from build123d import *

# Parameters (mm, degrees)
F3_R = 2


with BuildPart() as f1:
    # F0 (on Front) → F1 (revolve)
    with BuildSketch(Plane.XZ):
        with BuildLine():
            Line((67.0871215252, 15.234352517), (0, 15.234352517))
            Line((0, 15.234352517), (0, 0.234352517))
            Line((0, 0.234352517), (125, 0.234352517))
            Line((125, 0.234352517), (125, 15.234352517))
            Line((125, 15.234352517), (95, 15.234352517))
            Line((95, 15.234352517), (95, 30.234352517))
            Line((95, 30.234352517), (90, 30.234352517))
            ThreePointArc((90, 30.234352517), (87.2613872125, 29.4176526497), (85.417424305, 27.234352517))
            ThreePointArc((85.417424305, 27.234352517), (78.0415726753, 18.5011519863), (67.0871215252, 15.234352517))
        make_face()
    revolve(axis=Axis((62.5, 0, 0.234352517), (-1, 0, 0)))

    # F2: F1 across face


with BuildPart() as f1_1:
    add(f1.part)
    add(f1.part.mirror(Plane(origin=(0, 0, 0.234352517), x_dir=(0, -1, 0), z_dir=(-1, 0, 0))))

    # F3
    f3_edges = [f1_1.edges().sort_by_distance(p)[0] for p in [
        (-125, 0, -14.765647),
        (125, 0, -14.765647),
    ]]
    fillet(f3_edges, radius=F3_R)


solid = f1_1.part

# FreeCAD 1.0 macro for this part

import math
import FreeCAD as App
import Part
import Sketcher

V = App.Vector
Q = App.Units.Quantity


def edges_at(feature, points):
    """Names of the edges that pass closest to the given points."""
    edges = feature.Shape.Edges
    near = lambda p: min(range(len(edges)), key=lambda i: edges[i].distToShape(Part.Vertex(*p))[0])
    return sorted({f"Edge{near(p) + 1}" for p in points})

doc = App.newDocument("Part")
body = doc.addObject("PartDesign::Body", "Body")

# Sketch on XZ plane
sketch1 = body.newObject("Sketcher::SketchObject", "Sketch")
sketch1.AttachmentSupport = (doc.getObject("XZ_Plane"), [""])
sketch1.MapMode = "FlatFace"
sketch1.addGeometry([
    Part.LineSegment(V(67.087122, 15.234353, 0), V(0, 15.234353, 0)),  # 0
    Part.LineSegment(V(0, 15.234353, 0), V(0, 0.234353, 0)),  # 1
    Part.LineSegment(V(0, 0.234353, 0), V(125, 0.234353, 0)),  # 2
    Part.LineSegment(V(125, 0.234353, 0), V(125, 15.234353, 0)),  # 3
    Part.LineSegment(V(125, 15.234353, 0), V(95, 15.234353, 0)),  # 4
    Part.LineSegment(V(95, 15.234353, 0), V(95, 30.234353, 0)),  # 5
    Part.LineSegment(V(95, 30.234353, 0), V(90, 30.234353, 0)),  # 6
    Part.ArcOfCircle(Part.Circle(V(90, 25.234353, 0), V(0, 0, 1), 5), math.radians(90), math.radians(156.421822)),  # 7
    Part.ArcOfCircle(Part.Circle(V(67.087122, 35.234353, 0), V(0, 0, 1), 20), math.radians(-90), math.radians(-23.578178)),  # 8
], False)
sketch1.addGeometry(Part.LineSegment(V(125, 0.234353, 0), V(0, 0.234353, 0)), True)  # axis
sketch1.addConstraint([
    Sketcher.Constraint("Coincident", 0, 2, 1, 1),
    Sketcher.Constraint("Coincident", 1, 2, 2, 1),
    Sketcher.Constraint("Coincident", 2, 2, 3, 1),
    Sketcher.Constraint("Coincident", 3, 2, 4, 1),
    Sketcher.Constraint("Coincident", 4, 2, 5, 1),
    Sketcher.Constraint("Coincident", 5, 2, 6, 1),
    Sketcher.Constraint("Tangent", 6, 2, 7, 1),
    Sketcher.Constraint("Tangent", 7, 2, 8, 2),
    Sketcher.Constraint("Tangent", 8, 1, 0, 1),
    Sketcher.Constraint("Horizontal", 0),
    Sketcher.Constraint("Vertical", 1),
    Sketcher.Constraint("Horizontal", 2),
    Sketcher.Constraint("Vertical", 3),
    Sketcher.Constraint("Horizontal", 4),
    Sketcher.Constraint("Vertical", 5),
    Sketcher.Constraint("Horizontal", 6),
    Sketcher.Constraint("Horizontal", 9),
    Sketcher.Constraint("Coincident", 9, 1, 2, 2),
    Sketcher.Constraint("PointOnObject", 0, 2, -2),
    Sketcher.Constraint("PointOnObject", 9, 2, -2),
    Sketcher.Constraint("Horizontal", 0, 2, 3, 2),
    Sketcher.Constraint("Equal", 3, 5),
    Sketcher.Constraint("Radius", 7, Q("5 mm")),
    Sketcher.Constraint("Radius", 8, Q("20 mm")),
    Sketcher.Constraint("DistanceX", 2, 1, 2, 2, Q("125 mm")),
    Sketcher.Constraint("DistanceX", 4, 2, 4, 1, Q("30 mm")),
    Sketcher.Constraint("DistanceX", 6, 2, 6, 1, Q("5 mm")),
    Sketcher.Constraint("DistanceY", 1, 2, 1, 1, Q("15 mm")),
    Sketcher.Constraint("DistanceY", -1, 1, 7, 3, Q("25.234353 mm")),
])
revolution = body.newObject("PartDesign::Revolution", "Revolution")
revolution.Profile = sketch1
revolution.ReferenceAxis = (sketch1, ["Axis0"])
revolution.Angle = 360
body2 = doc.addObject("PartDesign::Body", "Body001")
doc.recompute()

body2.BaseFeature = body
doc.recompute()

mirroring = doc.addObject("Part::Mirroring", "Mirroring")
mirroring.Source = body
mirroring.Base = V(0, 0, 0.234353)
mirroring.Normal = V(-1, 0, 0)
body3 = doc.addObject("PartDesign::Body", "Body002")
body3.BaseFeature = mirroring
boolean = body2.newObject("PartDesign::Boolean", "Boolean")
boolean.Type = "Fuse"
boolean.addObjects([body3])
doc.recompute()

fillet = body2.newObject("PartDesign::Fillet", "Fillet")
fillet.Base = (boolean, edges_at(boolean, [(-125, 0, -14.766), (125, 0, -14.766)]))
fillet.Radius = 2
mirroring.Visibility = False

doc.recompute()
